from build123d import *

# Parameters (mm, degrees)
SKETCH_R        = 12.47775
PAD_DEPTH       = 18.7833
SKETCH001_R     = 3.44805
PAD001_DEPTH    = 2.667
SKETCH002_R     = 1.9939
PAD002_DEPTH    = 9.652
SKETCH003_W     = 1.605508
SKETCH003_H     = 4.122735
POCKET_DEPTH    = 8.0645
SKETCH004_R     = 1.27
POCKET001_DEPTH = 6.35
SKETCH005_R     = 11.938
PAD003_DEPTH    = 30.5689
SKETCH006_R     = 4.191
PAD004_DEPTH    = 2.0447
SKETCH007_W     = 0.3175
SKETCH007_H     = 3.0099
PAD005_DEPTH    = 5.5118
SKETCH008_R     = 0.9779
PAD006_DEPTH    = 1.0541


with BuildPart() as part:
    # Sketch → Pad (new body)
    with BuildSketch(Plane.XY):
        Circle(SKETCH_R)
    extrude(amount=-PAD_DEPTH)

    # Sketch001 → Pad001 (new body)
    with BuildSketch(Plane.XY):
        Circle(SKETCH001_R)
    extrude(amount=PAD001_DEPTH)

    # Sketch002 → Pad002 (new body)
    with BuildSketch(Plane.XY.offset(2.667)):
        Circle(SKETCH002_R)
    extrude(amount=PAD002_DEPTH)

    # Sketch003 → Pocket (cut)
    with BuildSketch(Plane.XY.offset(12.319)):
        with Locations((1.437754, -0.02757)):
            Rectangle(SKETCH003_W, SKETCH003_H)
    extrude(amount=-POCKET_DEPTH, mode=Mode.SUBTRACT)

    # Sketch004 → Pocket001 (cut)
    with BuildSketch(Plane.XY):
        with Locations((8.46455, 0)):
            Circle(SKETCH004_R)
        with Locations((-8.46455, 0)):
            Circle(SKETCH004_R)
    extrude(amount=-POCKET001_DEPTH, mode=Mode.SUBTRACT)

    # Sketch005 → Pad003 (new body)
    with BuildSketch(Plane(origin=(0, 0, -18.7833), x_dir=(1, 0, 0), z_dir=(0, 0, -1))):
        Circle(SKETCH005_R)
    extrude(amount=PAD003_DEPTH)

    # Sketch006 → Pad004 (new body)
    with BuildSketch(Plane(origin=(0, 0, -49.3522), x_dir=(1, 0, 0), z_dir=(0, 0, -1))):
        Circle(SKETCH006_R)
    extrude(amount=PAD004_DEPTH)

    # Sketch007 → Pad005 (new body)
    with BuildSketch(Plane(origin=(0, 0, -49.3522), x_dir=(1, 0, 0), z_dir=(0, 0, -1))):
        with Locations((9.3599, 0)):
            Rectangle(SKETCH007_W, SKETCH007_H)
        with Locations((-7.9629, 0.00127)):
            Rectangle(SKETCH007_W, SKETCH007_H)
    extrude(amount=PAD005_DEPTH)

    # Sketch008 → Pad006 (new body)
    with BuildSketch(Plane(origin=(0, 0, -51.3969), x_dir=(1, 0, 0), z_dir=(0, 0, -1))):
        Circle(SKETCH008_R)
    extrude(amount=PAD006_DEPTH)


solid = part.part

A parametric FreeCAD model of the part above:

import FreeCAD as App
import Part
import Sketcher
Q = App.Units.Quantity


def add_polygon(sketch, points):
    """Adds a closed chain of lines whose ends are joined by coincident constraints."""
    first, n = sketch.GeometryCount, len(points)
    for a, b in zip(points, points[1:] + points[:1]):
        sketch.addGeometry(Part.LineSegment(App.Vector(*a, 0), App.Vector(*b, 0)), False)
    for i in range(n):
        sketch.addConstraint(Sketcher.Constraint("Coincident", first + i, 2, first + (i + 1) % n, 1))

doc = App.newDocument("Part")
params = doc.addObject("Spreadsheet::Sheet", "Params")
for row, (alias, value) in enumerate([
    ("pad1_length", "0.7395 in"),
    ("pad2_length", "0.105 in"),
    ("sketch3_diameter", "0.157 in"),
    ("pad3_length", "0.38 in"),
    ("pocket1_length", "0.3175 in"),
    ("sketch5_diameter", "0.1 in"),
    ("pocket2_length", "0.25 in"),
    ("sketch6_diameter", "0.94 in"),
    ("pad4_length", "1.2035 in"),
    ("sketch7_diameter", "0.33 in"),
    ("pad5_length", "0.0805 in"),
    ("pad6_length", "0.217 in"),
    ("sketch9_diameter", "0.077 in"),
    ("pad7_length", "0.0415 in"),
], start=1):
    params.set(f"A{row}", alias)
    params.set(f"B{row}", "=" + value)
    params.setAlias(f"B{row}", alias)

body = doc.addObject("PartDesign::Body", "Body")

sketch1 = body.newObject("Sketcher::SketchObject", "Sketch")
sketch1.AttachmentSupport = (doc.getObject("XY_Plane"), [""])
sketch1.MapMode = "FlatFace"
sketch1.addGeometry(Part.Circle(App.Vector(0, 0, 0), App.Vector(0, 0, 1), 12), False)
sketch1.addConstraint([
    Sketcher.Constraint("Coincident", 0, 3, -1, 1),
    Sketcher.Constraint("Diameter", 0, Q("0.9825 in")),
])
pad1 = body.newObject("PartDesign::Pad", "Pad")
pad1.Profile = sketch1
pad1.setExpression("Length", "Params.pad1_length")
pad1.Reversed = True

sketch2 = body.newObject("Sketcher::SketchObject", "Sketch001")
sketch2.AttachmentSupport = (doc.getObject("XY_Plane"), [""])
sketch2.MapMode = "FlatFace"
sketch2.addGeometry(Part.Circle(App.Vector(0, 0, 0), App.Vector(0, 0, 1), 3.4), False)
sketch2.addConstraint([
    Sketcher.Constraint("Coincident", 0, 3, -1, 1),
    Sketcher.Constraint("Diameter", 0, Q("0.2715 in")),
])
pad2 = body.newObject("PartDesign::Pad", "Pad001")
pad2.Profile = sketch2
pad2.setExpression("Length", "Params.pad2_length")

sketch3 = body.newObject("Sketcher::SketchObject", "Sketch002")
sketch3.AttachmentSupport = (doc.getObject("XY_Plane"), [""])
sketch3.MapMode = "FlatFace"
sketch3.AttachmentOffset = App.Placement(App.Vector(0, 0, 0.105 * 25.4), App.Rotation())
sketch3.addGeometry(Part.Circle(App.Vector(0, 0, 0), App.Vector(0, 0, 1), 2), False)
sketch3.addConstraint([
    Sketcher.Constraint("Coincident", 0, 3, -1, 1),
    Sketcher.Constraint("Diameter", 0, Q("0.157 in")),
])
sketch3.setExpression("Constraints[1]", "Params.sketch3_diameter")
pad3 = body.newObject("PartDesign::Pad", "Pad002")
pad3.Profile = sketch3
pad3.setExpression("Length", "Params.pad3_length")

sketch4 = body.newObject("Sketcher::SketchObject", "Sketch003")
sketch4.AttachmentSupport = (doc.getObject("XY_Plane"), [""])
sketch4.MapMode = "FlatFace"
sketch4.AttachmentOffset = App.Placement(App.Vector(0, 0, 0.485 * 25.4), App.Rotation())
add_polygon(sketch4, [(0.6, 2), (0.6, -2.1), (2.2, -2.1), (2.2, 2)])
sketch4.addConstraint([
    Sketcher.Constraint("Vertical", 0),
    Sketcher.Constraint("Horizontal", 1),
    Sketcher.Constraint("Vertical", 2),
    Sketcher.Constraint("Horizontal", 3),
    Sketcher.Constraint("DistanceX", -1, 1, 0, 2, Q("0.025 in")),
    Sketcher.Constraint("DistanceX", 1, 1, 1, 2, Q("1.605508 mm")),
    Sketcher.Constraint("DistanceY", 0, 2, 0, 1, Q("4.122735 mm")),
    Sketcher.Constraint("DistanceY", 0, 2, -1, 1, Q("2.088938 mm")),
])
pocket1 = body.newObject("PartDesign::Pocket", "Pocket")
pocket1.Profile = sketch4
pocket1.setExpression("Length", "Params.pocket1_length")

sketch5 = body.newObject("Sketcher::SketchObject", "Sketch004")
sketch5.AttachmentSupport = (doc.getObject("XY_Plane"), [""])
sketch5.MapMode = "FlatFace"
sketch5.addGeometry([
    Part.Circle(App.Vector(8.5, 0, 0), App.Vector(0, 0, 1), 1.3),
    Part.Circle(App.Vector(-8.5, 0, 0), App.Vector(0, 0, 1), 1.3),
], False)
sketch5.addConstraint([
    Sketcher.Constraint("Equal", 0, 1),
    Sketcher.Constraint("Symmetric", 0, 3, 1, 3, -1, 1),
    Sketcher.Constraint("PointOnObject", 0, 3, -1),
    Sketcher.Constraint("Diameter", 0, Q("0.1 in")),
    Sketcher.Constraint("DistanceX", 1, 3, 0, 3, Q("0.6665 in")),
])
sketch5.setExpression("Constraints[3]", "Params.sketch5_diameter")
pocket2 = body.newObject("PartDesign::Pocket", "Pocket001")
pocket2.Profile = sketch5
pocket2.setExpression("Length", "Params.pocket2_length")

sketch6 = body.newObject("Sketcher::SketchObject", "Sketch005")
sketch6.AttachmentSupport = (doc.getObject("XY_Plane"), [""])
sketch6.MapMode = "FlatFace"
sketch6.AttachmentOffset = App.Placement(App.Vector(0, 0, -0.7395 * 25.4), App.Rotation())
sketch6.addGeometry(Part.Circle(App.Vector(0, 0, 0), App.Vector(0, 0, 1), 12), False)
sketch6.addConstraint([
    Sketcher.Constraint("Coincident", 0, 3, -1, 1),
    Sketcher.Constraint("Diameter", 0, Q("0.94 in")),
])
sketch6.setExpression("Constraints[1]", "Params.sketch6_diameter")
pad4 = body.newObject("PartDesign::Pad", "Pad003")
pad4.Profile = sketch6
pad4.setExpression("Length", "Params.pad4_length")
pad4.Reversed = True

sketch7 = body.newObject("Sketcher::SketchObject", "Sketch006")
sketch7.AttachmentSupport = (doc.getObject("XY_Plane"), [""])
sketch7.MapMode = "FlatFace"
sketch7.AttachmentOffset = App.Placement(App.Vector(0, 0, -1.943 * 25.4), App.Rotation())
sketch7.addGeometry(Part.Circle(App.Vector(0, 0, 0), App.Vector(0, 0, 1), 4.2), False)
sketch7.addConstraint([
    Sketcher.Constraint("Coincident", 0, 3, -1, 1),
    Sketcher.Constraint("Diameter", 0, Q("0.33 in")),
])
sketch7.setExpression("Constraints[1]", "Params.sketch7_diameter")
pad5 = body.newObject("PartDesign::Pad", "Pad004")
pad5.Profile = sketch7
pad5.setExpression("Length", "Params.pad5_length")
pad5.Reversed = True

sketch8 = body.newObject("Sketcher::SketchObject", "Sketch007")
sketch8.AttachmentSupport = (doc.getObject("XY_Plane"), [""])
sketch8.MapMode = "FlatFace"
sketch8.AttachmentOffset = App.Placement(App.Vector(0, 0, -1.943 * 25.4), App.Rotation())
add_polygon(sketch8, [(9.2, -1.5), (9.2, 1.5), (9.52, 1.5), (9.52, -1.5)])
add_polygon(sketch8, [(-8.12, -1.51), (-8.12, 1.5), (-7.8, 1.5), (-7.8, -1.51)])
sketch8.addConstraint([
    Sketcher.Constraint("Vertical", 0),
    Sketcher.Constraint("Horizontal", 1),
    Sketcher.Constraint("Vertical", 2),
    Sketcher.Constraint("Horizontal", 3),
    Sketcher.Constraint("Vertical", 4),
    Sketcher.Constraint("Horizontal", 5),
    Sketcher.Constraint("Vertical", 6),
    Sketcher.Constraint("Horizontal", 7),
    Sketcher.Constraint("Equal", 3, 5),
    Sketcher.Constraint("Equal", 2, 4),
    Sketcher.Constraint("DistanceX", 1, 1, 1, 2, Q("0.0125 in")),
    Sketcher.Constraint("DistanceY", 0, 1, 0, 2, Q("0.1185 in")),
    Sketcher.Constraint("DistanceX", 4, 2, 0, 2, Q("0.682 in")),
    Sketcher.Constraint("DistanceY", -1, 1, 4, 2, Q("0.0592 in")),
    Sketcher.Constraint("DistanceX", -1, 1, 0, 2, Q("9.20115 mm")),
    Sketcher.Constraint("DistanceY", -1, 1, 0, 2, Q("1.50495 mm")),
])
pad6 = body.newObject("PartDesign::Pad", "Pad005")
pad6.Profile = sketch8
pad6.setExpression("Length", "Params.pad6_length")
pad6.Reversed = True

sketch9 = body.newObject("Sketcher::SketchObject", "Sketch008")
sketch9.AttachmentSupport = (doc.getObject("XY_Plane"), [""])
sketch9.MapMode = "FlatFace"
sketch9.AttachmentOffset = App.Placement(App.Vector(0, 0, -2.0235 * 25.4), App.Rotation())
sketch9.addGeometry(Part.Circle(App.Vector(0, 0, 0), App.Vector(0, 0, 1), 1), False)
sketch9.addConstraint([
    Sketcher.Constraint("Coincident", 0, 3, -1, 1),
    Sketcher.Constraint("Diameter", 0, Q("0.077 in")),
])
sketch9.setExpression("Constraints[1]", "Params.sketch9_diameter")
pad7 = body.newObject("PartDesign::Pad", "Pad006")
pad7.Profile = sketch9
pad7.setExpression("Length", "Params.pad7_length")
pad7.Reversed = True

doc.recompute()
